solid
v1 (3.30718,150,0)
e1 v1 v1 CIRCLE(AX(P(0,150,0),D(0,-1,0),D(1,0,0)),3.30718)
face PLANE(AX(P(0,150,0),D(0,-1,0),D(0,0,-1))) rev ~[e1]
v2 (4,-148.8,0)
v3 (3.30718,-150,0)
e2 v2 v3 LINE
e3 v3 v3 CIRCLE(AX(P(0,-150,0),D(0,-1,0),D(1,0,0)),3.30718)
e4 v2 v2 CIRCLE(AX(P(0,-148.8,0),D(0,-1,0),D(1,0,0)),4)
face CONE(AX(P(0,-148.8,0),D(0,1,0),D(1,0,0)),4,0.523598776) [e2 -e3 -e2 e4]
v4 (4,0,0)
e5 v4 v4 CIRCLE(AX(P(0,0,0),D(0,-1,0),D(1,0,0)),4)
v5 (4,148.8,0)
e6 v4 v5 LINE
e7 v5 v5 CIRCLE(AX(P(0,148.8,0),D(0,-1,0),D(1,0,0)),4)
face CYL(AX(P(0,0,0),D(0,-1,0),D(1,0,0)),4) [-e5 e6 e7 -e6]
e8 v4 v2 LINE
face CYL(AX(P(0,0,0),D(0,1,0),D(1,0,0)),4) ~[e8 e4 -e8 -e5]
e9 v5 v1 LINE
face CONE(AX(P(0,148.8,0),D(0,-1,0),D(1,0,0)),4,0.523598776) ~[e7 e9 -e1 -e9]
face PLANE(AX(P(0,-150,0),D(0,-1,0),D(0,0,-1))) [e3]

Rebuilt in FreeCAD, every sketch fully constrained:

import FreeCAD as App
import Part
import Sketcher
Q = App.Units.Quantity


def edges_at(feature, points):
    """Names of the edges that pass closest to the given points."""
    edges = feature.Shape.Edges
    near = lambda p: min(range(len(edges)), key=lambda i: edges[i].distToShape(Part.Vertex(*p))[0])
    return sorted({f"Edge{near(p) + 1}" for p in points})

doc = App.newDocument("Part")
body = doc.addObject("PartDesign::Body", "Body")

# Sketch on XZ plane
sketch1 = doc.addObject("Sketcher::SketchObject", "Sketch")
body.addObject(sketch1)
sketch1.AttachmentSupport = (doc.XZ_Plane, [""])
sketch1.MapMode = "FlatFace"
sketch1.addGeometry(Part.Circle(App.Vector(0, 0, 0), App.Vector(0, 0, 1), 4), False)
sketch1.addConstraint(Sketcher.Constraint("Coincident", 0, 3, -1, 1))
sketch1.addConstraint(Sketcher.Constraint("Diameter", 0, Q("8 mm")))
pad1 = doc.addObject("PartDesign::Pad", "Pad")
body.addObject(pad1)
pad1.Profile = sketch1
pad1.Length = 300
pad1.Midplane = True
doc.recompute()

chamfer = doc.addObject("PartDesign::Chamfer", "Chamfer")
body.addObject(chamfer)
chamfer.Base = (pad1, edges_at(pad1, [(-4, -150, 0), (-4, 150, 0)]))
chamfer.ChamferType = "Distance and Angle"
chamfer.Size = 1.2
chamfer.Angle = 30

doc.recompute()
